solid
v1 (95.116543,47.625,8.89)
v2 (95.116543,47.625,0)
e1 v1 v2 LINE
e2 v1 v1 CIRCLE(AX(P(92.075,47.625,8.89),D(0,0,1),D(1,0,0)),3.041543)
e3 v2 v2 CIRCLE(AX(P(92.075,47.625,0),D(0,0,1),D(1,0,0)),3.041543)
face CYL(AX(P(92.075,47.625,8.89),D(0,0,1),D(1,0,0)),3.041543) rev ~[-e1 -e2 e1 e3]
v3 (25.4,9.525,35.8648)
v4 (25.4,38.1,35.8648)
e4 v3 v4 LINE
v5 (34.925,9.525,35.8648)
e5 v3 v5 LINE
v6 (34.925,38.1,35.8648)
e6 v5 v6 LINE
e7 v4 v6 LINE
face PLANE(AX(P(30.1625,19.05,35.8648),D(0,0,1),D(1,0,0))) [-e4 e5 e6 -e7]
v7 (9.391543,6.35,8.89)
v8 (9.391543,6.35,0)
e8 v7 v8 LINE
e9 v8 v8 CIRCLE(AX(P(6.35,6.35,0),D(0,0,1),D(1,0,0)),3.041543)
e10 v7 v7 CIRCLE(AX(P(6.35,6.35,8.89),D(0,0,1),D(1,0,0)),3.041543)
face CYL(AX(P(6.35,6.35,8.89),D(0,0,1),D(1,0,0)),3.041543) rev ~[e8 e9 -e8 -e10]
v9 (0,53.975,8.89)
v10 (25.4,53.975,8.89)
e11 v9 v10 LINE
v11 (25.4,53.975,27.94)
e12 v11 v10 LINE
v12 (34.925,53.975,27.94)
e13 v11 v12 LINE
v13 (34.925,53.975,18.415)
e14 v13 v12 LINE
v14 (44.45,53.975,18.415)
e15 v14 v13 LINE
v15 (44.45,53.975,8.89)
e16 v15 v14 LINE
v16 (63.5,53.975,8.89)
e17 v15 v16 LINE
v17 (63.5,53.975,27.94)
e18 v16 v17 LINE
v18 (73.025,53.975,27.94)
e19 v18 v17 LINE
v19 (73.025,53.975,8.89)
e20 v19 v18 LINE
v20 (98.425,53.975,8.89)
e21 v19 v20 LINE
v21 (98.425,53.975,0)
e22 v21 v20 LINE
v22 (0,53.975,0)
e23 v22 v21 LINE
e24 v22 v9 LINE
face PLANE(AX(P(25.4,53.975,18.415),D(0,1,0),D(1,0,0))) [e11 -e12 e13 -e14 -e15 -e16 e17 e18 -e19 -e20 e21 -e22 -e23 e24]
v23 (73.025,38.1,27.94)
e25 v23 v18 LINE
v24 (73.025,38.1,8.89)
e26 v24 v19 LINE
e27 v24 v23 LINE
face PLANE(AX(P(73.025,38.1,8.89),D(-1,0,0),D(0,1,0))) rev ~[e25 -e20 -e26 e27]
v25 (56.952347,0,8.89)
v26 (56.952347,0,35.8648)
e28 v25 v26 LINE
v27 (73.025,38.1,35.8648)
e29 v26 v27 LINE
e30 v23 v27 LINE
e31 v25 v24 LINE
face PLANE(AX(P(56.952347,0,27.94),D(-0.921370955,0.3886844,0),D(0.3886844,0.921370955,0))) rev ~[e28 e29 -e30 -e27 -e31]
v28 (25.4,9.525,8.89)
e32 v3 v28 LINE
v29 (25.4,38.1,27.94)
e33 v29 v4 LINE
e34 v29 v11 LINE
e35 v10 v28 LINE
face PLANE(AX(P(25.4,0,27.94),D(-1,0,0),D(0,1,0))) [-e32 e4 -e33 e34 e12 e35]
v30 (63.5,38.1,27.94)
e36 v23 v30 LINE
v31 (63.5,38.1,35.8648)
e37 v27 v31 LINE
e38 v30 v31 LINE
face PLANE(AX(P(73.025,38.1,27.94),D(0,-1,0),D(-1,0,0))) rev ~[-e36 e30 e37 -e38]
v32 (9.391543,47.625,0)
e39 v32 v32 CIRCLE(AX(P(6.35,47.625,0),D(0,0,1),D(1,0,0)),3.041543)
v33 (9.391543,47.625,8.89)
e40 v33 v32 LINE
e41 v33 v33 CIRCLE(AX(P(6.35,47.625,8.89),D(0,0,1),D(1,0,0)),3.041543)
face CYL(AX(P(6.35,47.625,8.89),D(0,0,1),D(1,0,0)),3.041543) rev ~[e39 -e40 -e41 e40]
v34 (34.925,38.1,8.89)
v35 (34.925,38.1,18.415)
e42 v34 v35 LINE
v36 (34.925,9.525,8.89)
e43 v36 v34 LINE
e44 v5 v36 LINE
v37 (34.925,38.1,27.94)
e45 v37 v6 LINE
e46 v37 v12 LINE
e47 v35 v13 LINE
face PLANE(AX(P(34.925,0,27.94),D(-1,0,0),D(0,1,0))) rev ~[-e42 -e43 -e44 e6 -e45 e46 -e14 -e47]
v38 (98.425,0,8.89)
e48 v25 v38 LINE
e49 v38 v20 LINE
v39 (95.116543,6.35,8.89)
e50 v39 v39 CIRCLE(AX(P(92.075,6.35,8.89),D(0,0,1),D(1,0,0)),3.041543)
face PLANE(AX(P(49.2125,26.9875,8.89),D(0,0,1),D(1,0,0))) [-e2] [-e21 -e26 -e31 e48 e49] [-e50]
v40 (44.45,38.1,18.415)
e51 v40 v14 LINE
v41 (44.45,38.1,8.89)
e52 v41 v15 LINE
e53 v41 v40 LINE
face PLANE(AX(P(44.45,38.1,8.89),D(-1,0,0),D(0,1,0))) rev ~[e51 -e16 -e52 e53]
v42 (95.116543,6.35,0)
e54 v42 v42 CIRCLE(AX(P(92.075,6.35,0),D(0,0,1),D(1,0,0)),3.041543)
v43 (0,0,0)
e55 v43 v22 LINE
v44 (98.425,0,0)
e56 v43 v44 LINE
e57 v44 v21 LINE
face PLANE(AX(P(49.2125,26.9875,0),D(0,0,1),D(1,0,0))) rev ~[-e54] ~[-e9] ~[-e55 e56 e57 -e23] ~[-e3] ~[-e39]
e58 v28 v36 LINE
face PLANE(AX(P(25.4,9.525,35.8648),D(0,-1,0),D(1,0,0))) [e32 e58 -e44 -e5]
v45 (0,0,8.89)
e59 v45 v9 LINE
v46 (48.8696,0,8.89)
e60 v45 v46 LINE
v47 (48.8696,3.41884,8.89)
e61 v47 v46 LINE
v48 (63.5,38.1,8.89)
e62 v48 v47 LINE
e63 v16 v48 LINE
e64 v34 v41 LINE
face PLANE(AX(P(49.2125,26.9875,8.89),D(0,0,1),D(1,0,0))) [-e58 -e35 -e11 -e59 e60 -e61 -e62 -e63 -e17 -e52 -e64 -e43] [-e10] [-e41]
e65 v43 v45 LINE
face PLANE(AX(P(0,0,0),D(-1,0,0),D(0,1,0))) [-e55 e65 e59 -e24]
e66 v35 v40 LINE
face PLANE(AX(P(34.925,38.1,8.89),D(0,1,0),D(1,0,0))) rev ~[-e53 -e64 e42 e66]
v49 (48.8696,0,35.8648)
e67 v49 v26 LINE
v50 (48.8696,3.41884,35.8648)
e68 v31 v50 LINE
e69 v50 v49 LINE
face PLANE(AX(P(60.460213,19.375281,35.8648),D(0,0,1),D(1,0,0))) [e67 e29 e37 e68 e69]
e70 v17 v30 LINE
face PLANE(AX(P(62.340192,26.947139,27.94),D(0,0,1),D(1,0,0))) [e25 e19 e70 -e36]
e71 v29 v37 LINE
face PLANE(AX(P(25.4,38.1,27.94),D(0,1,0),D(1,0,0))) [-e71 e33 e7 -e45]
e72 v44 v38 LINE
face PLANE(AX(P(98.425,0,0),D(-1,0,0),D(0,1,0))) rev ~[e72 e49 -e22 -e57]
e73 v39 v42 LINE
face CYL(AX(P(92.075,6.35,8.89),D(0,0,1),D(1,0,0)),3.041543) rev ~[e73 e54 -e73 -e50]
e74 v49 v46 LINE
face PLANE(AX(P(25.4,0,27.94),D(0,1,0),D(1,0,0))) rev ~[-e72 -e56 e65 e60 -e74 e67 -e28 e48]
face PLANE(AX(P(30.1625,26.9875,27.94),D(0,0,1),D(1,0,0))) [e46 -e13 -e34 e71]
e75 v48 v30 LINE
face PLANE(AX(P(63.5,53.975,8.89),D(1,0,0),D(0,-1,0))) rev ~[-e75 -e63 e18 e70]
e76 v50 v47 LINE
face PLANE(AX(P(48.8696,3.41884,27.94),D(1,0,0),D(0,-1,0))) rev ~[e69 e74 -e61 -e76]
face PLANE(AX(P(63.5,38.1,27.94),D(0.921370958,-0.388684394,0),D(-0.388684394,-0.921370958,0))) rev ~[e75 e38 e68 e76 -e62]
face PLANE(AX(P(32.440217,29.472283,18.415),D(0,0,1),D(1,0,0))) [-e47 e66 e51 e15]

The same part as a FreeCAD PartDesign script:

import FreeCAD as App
import Part
import Sketcher

V = App.Vector
Q = App.Units.Quantity

doc = App.newDocument("Part")
body = doc.addObject("PartDesign::Body", "Body")

sketch1 = body.newObject("Sketcher::SketchObject", "Sketch")
sketch1.AttachmentSupport = (doc.getObject("XY_Plane"), [""])
sketch1.MapMode = "FlatFace"
sketch1.addGeometry(Part.LineSegment(V(0, 54, 0), V(0, 0, 0)), False)
sketch1.addGeometry(Part.LineSegment(V(0, 0, 0), V(98, 0, 0)), False)
sketch1.addGeometry(Part.LineSegment(V(98, 0, 0), V(98, 54, 0)), False)
sketch1.addGeometry(Part.LineSegment(V(98, 54, 0), V(0, 54, 0)), False)
sketch1.addConstraint(Sketcher.Constraint("Coincident", 0, 2, 1, 1))
sketch1.addConstraint(Sketcher.Constraint("Coincident", 1, 2, 2, 1))
sketch1.addConstraint(Sketcher.Constraint("Coincident", 2, 2, 3, 1))
sketch1.addConstraint(Sketcher.Constraint("Coincident", 3, 2, 0, 1))
sketch1.addConstraint(Sketcher.Constraint("Vertical", 0))
sketch1.addConstraint(Sketcher.Constraint("Horizontal", 1))
sketch1.addConstraint(Sketcher.Constraint("Vertical", 2))
sketch1.addConstraint(Sketcher.Constraint("Horizontal", 3))
sketch1.addConstraint(Sketcher.Constraint("Coincident", 0, 2, -1, 1))
sketch1.addConstraint(Sketcher.Constraint("DistanceX", 1, 1, 1, 2, Q("3.875 in")))
sketch1.addConstraint(Sketcher.Constraint("DistanceY", 0, 2, 0, 1, Q("2.125 in")))
pad1 = body.newObject("PartDesign::Pad", "Pad")
pad1.Profile = sketch1
pad1.Length = Q("0.35 in")

sketch2 = body.newObject("Sketcher::SketchObject", "Sketch001")
sketch2.AttachmentSupport = (doc.getObject("XY_Plane"), [""])
sketch2.MapMode = "FlatFace"
sketch2.AttachmentOffset = App.Placement(V(0, 0, 0.35 * 25.4), App.Rotation())
sketch2.addGeometry(Part.LineSegment(V(25, 0, 0), V(35, 0, 0)), False)
sketch2.addGeometry(Part.LineSegment(V(35, 0, 0), V(35, 38, 0)), False)
sketch2.addGeometry(Part.LineSegment(V(35, 38, 0), V(44, 38, 0)), False)
sketch2.addGeometry(Part.LineSegment(V(44, 38, 0), V(44, 54, 0)), False)
sketch2.addGeometry(Part.LineSegment(V(44, 54, 0), V(25, 54, 0)), False)
sketch2.addGeometry(Part.LineSegment(V(25, 54, 0), V(25, 0, 0)), False)
sketch2.addConstraint(Sketcher.Constraint("Coincident", 0, 2, 1, 1))
sketch2.addConstraint(Sketcher.Constraint("Coincident", 1, 2, 2, 1))
sketch2.addConstraint(Sketcher.Constraint("Coincident", 2, 2, 3, 1))
sketch2.addConstraint(Sketcher.Constraint("Coincident", 3, 2, 4, 1))
sketch2.addConstraint(Sketcher.Constraint("Coincident", 4, 2, 5, 1))
sketch2.addConstraint(Sketcher.Constraint("Coincident", 5, 2, 0, 1))
sketch2.addConstraint(Sketcher.Constraint("Horizontal", 0))
sketch2.addConstraint(Sketcher.Constraint("Vertical", 1))
sketch2.addConstraint(Sketcher.Constraint("Horizontal", 2))
sketch2.addConstraint(Sketcher.Constraint("Vertical", 3))
sketch2.addConstraint(Sketcher.Constraint("Horizontal", 4))
sketch2.addConstraint(Sketcher.Constraint("Vertical", 5))
sketch2.addConstraint(Sketcher.Constraint("PointOnObject", 0, 2, -1))
sketch2.addConstraint(Sketcher.Constraint("Equal", 0, 2))
sketch2.addConstraint(Sketcher.Constraint("DistanceY", 1, 1, 1, 2, Q("1.5 in")))
sketch2.addConstraint(Sketcher.Constraint("DistanceX", -1, 1, 4, 2, Q("1 in")))
sketch2.addConstraint(Sketcher.Constraint("DistanceX", 4, 2, 4, 1, Q("0.75 in")))
sketch2.addConstraint(Sketcher.Constraint("DistanceY", 3, 1, 3, 2, Q("0.625 in")))
pad2 = body.newObject("PartDesign::Pad", "Pad001")
pad2.Profile = sketch2
pad2.Length = Q("0.375 in")

sketch3 = body.newObject("Sketcher::SketchObject", "Sketch002")
sketch3.AttachmentSupport = (doc.getObject("XY_Plane"), [""])
sketch3.MapMode = "FlatFace"
sketch3.AttachmentOffset = App.Placement(V(0, 0, 0.35 * 25.4), App.Rotation())
sketch3.addGeometry(Part.LineSegment(V(73, 54, 0), V(63.5, 54, 0)), False)
sketch3.addGeometry(Part.LineSegment(V(63.5, 54, 0), V(63.5, 38.1, 0)), False)
sketch3.addGeometry(Part.LineSegment(V(63.5, 38.1, 0), V(48.9, 3.4, 0)), False)
sketch3.addGeometry(Part.LineSegment(V(48.9, 3.4, 0), V(48.9, 0, 0)), False)
sketch3.addGeometry(Part.LineSegment(V(48.9, 0, 0), V(57, 0, 0)), False)
sketch3.addGeometry(Part.LineSegment(V(57, 0, 0), V(73, 38.1, 0)), False)
sketch3.addGeometry(Part.LineSegment(V(73, 38.1, 0), V(73, 54, 0)), False)
sketch3.addConstraint(Sketcher.Constraint("Coincident", 0, 2, 1, 1))
sketch3.addConstraint(Sketcher.Constraint("Coincident", 1, 2, 2, 1))
sketch3.addConstraint(Sketcher.Constraint("Coincident", 2, 2, 3, 1))
sketch3.addConstraint(Sketcher.Constraint("Coincident", 3, 2, 4, 1))
sketch3.addConstraint(Sketcher.Constraint("Coincident", 4, 2, 5, 1))
sketch3.addConstraint(Sketcher.Constraint("Coincident", 5, 2, 6, 1))
sketch3.addConstraint(Sketcher.Constraint("Coincident", 6, 2, 0, 1))
sketch3.addConstraint(Sketcher.Constraint("Horizontal", 0))
sketch3.addConstraint(Sketcher.Constraint("Vertical", 1))
sketch3.addConstraint(Sketcher.Constraint("Vertical", 3))
sketch3.addConstraint(Sketcher.Constraint("Horizontal", 4))
sketch3.addConstraint(Sketcher.Constraint("Vertical", 6))
sketch3.addConstraint(Sketcher.Constraint("PointOnObject", 3, 2, -1))
sketch3.addConstraint(Sketcher.Constraint("Parallel", 2, 5))
sketch3.addConstraint(Sketcher.Constraint("Horizontal", 1, 2, 5, 2))
sketch3.addConstraint(Sketcher.Constraint("DistanceX", -1, 1, 0, 2, Q("2.5 in")))
sketch3.addConstraint(Sketcher.Constraint("DistanceY", -1, 1, 1, 2, Q("1.5 in")))
sketch3.addConstraint(Sketcher.Constraint("DistanceX", 0, 2, 0, 1, Q("0.375 in")))
sketch3.addConstraint(Sketcher.Constraint("DistanceY", 1, 2, 1, 1, Q("0.625 in")))
sketch3.addConstraint(Sketcher.Constraint("DistanceY", 3, 2, 3, 1, Q("0.1346 in")))
sketch3.addConstraint(Sketcher.Constraint("DistanceX", -1, 1, 2, 2, Q("1.924 in")))
pad3 = body.newObject("PartDesign::Pad", "Pad002")
pad3.Profile = sketch3
pad3.Length = Q("0.75 in")

sketch4 = body.newObject("Sketcher::SketchObject", "Sketch003")
sketch4.AttachmentSupport = (doc.getObject("XY_Plane"), [""])
sketch4.MapMode = "FlatFace"
sketch4.AttachmentOffset = App.Placement(V(0, 0, 1.1 * 25.4), App.Rotation())
sketch4.addGeometry(Part.LineSegment(V(48.9, 0, 0), V(57, 0, 0)), False)
sketch4.addGeometry(Part.LineSegment(V(57, 0, 0), V(73, 38.1, 0)), False)
sketch4.addGeometry(Part.LineSegment(V(73, 38.1, 0), V(63.5, 38.1, 0)), False)
sketch4.addGeometry(Part.LineSegment(V(63.5, 38.1, 0), V(48.9, 3.4, 0)), False)
sketch4.addGeometry(Part.LineSegment(V(48.9, 3.4, 0), V(48.9, 0, 0)), False)
sketch4.addConstraint(Sketcher.Constraint("Coincident", 0, 2, 1, 1))
sketch4.addConstraint(Sketcher.Constraint("Coincident", 1, 2, 2, 1))
sketch4.addConstraint(Sketcher.Constraint("Coincident", 2, 2, 3, 1))
sketch4.addConstraint(Sketcher.Constraint("Coincident", 3, 2, 4, 1))
sketch4.addConstraint(Sketcher.Constraint("Coincident", 4, 2, 0, 1))
sketch4.addConstraint(Sketcher.Constraint("Horizontal", 0))
sketch4.addConstraint(Sketcher.Constraint("Horizontal", 2))
sketch4.addConstraint(Sketcher.Constraint("Vertical", 4))
sketch4.addConstraint(Sketcher.Constraint("PointOnObject", 0, 2, -1))
sketch4.addConstraint(Sketcher.Constraint("Parallel", 1, 3))
sketch4.addConstraint(Sketcher.Constraint("DistanceY", -1, 1, 1, 2, Q("1.5 in")))
sketch4.addConstraint(Sketcher.Constraint("DistanceX", -1, 1, 2, 2, Q("2.5 in")))
sketch4.addConstraint(Sketcher.Constraint("DistanceX", 2, 2, 2, 1, Q("0.375 in")))
sketch4.addConstraint(Sketcher.Constraint("DistanceY", 4, 2, 4, 1, Q("0.1346 in")))
sketch4.addConstraint(Sketcher.Constraint("DistanceX", -1, 1, 3, 2, Q("1.924 in")))
pad4 = body.newObject("PartDesign::Pad", "Pad003")
pad4.Profile = sketch4
pad4.Length = Q("0.312 in")

sketch5 = body.newObject("Sketcher::SketchObject", "Sketch004")
sketch5.AttachmentSupport = (doc.getObject("XY_Plane"), [""])
sketch5.MapMode = "FlatFace"
sketch5.AttachmentOffset = App.Placement(V(0, 0, 0.725 * 25.4), App.Rotation())
sketch5.addGeometry(Part.LineSegment(V(25, 54, 0), V(25, 0, 0)), False)
sketch5.addGeometry(Part.LineSegment(V(25, 0, 0), V(35, 0, 0)), False)
sketch5.addGeometry(Part.LineSegment(V(35, 0, 0), V(35, 54, 0)), False)
sketch5.addGeometry(Part.LineSegment(V(35, 54, 0), V(25, 54, 0)), False)
sketch5.addConstraint(Sketcher.Constraint("Coincident", 0, 2, 1, 1))
sketch5.addConstraint(Sketcher.Constraint("Coincident", 1, 2, 2, 1))
sketch5.addConstraint(Sketcher.Constraint("Coincident", 2, 2, 3, 1))
sketch5.addConstraint(Sketcher.Constraint("Coincident", 3, 2, 0, 1))
sketch5.addConstraint(Sketcher.Constraint("Vertical", 0))
sketch5.addConstraint(Sketcher.Constraint("Horizontal", 1))
sketch5.addConstraint(Sketcher.Constraint("Vertical", 2))
sketch5.addConstraint(Sketcher.Constraint("Horizontal", 3))
sketch5.addConstraint(Sketcher.Constraint("PointOnObject", 0, 2, -1))
sketch5.addConstraint(Sketcher.Constraint("DistanceX", -1, 1, 0, 2, Q("1 in")))
sketch5.addConstraint(Sketcher.Constraint("DistanceX", 1, 1, 1, 2, Q("0.375 in")))
sketch5.addConstraint(Sketcher.Constraint("DistanceY", 0, 2, 0, 1, Q("2.125 in")))
pad5 = body.newObject("PartDesign::Pad", "Pad004")
pad5.Profile = sketch5
pad5.Length = Q("0.375 in")

sketch6 = body.newObject("Sketcher::SketchObject", "Sketch005")
sketch6.AttachmentSupport = (doc.getObject("XY_Plane"), [""])
sketch6.MapMode = "FlatFace"
sketch6.AttachmentOffset = App.Placement(V(0, 0, 1.1 * 25.4), App.Rotation())
sketch6.addGeometry(Part.LineSegment(V(25, 38, 0), V(25, 0, 0)), False)
sketch6.addGeometry(Part.LineSegment(V(25, 0, 0), V(35, 0, 0)), False)
sketch6.addGeometry(Part.LineSegment(V(35, 0, 0), V(35, 38, 0)), False)
sketch6.addGeometry(Part.LineSegment(V(35, 38, 0), V(25, 38, 0)), False)
sketch6.addConstraint(Sketcher.Constraint("Coincident", 0, 2, 1, 1))
sketch6.addConstraint(Sketcher.Constraint("Coincident", 1, 2, 2, 1))
sketch6.addConstraint(Sketcher.Constraint("Coincident", 2, 2, 3, 1))
sketch6.addConstraint(Sketcher.Constraint("Coincident", 3, 2, 0, 1))
sketch6.addConstraint(Sketcher.Constraint("Vertical", 0))
sketch6.addConstraint(Sketcher.Constraint("Horizontal", 1))
sketch6.addConstraint(Sketcher.Constraint("Vertical", 2))
sketch6.addConstraint(Sketcher.Constraint("Horizontal", 3))
sketch6.addConstraint(Sketcher.Constraint("PointOnObject", 0, 2, -1))
sketch6.addConstraint(Sketcher.Constraint("DistanceY", 0, 2, 0, 1, Q("1.5 in")))
sketch6.addConstraint(Sketcher.Constraint("DistanceX", -1, 1, 0, 2, Q("1 in")))
sketch6.addConstraint(Sketcher.Constraint("DistanceX", 1, 1, 1, 2, Q("0.375 in")))
pad6 = body.newObject("PartDesign::Pad", "Pad005")
pad6.Profile = sketch6
pad6.Length = Q("0.312 in")

sketch7 = body.newObject("Sketcher::SketchObject", "Sketch006")
sketch7.AttachmentSupport = (doc.getObject("XY_Plane"), [""])
sketch7.MapMode = "FlatFace"
sketch7.AttachmentOffset = App.Placement(V(0, 0, 0.35 * 25.4), App.Rotation())
sketch7.addGeometry(Part.Circle(V(6.3, 47.6, 0), V(0, 0, 1), 3), False)
sketch7.addGeometry(Part.Circle(V(6.3, 6.3, 0), V(0, 0, 1), 3), False)
sketch7.addGeometry(Part.Circle(V(92.1, 6.3, 0), V(0, 0, 1), 3), False)
sketch7.addGeometry(Part.Circle(V(92.1, 47.6, 0), V(0, 0, 1), 3), False)
sketch7.addConstraint(Sketcher.Constraint("Equal", 0, 1))
sketch7.addConstraint(Sketcher.Constraint("Equal", 1, 2))
sketch7.addConstraint(Sketcher.Constraint("Equal", 2, 3))
sketch7.addConstraint(Sketcher.Constraint("Horizontal", 1, 3, 2, 3))
sketch7.addConstraint(Sketcher.Constraint("Horizontal", 0, 3, 3, 3))
sketch7.addConstraint(Sketcher.Constraint("Vertical", 0, 3, 1, 3))
sketch7.addConstraint(Sketcher.Constraint("Vertical", 2, 3, 3, 3))
sketch7.addConstraint(Sketcher.Constraint("DistanceX", -1, 1, 0, 3, Q("0.25 in")))
sketch7.addConstraint(Sketcher.Constraint("DistanceY", -1, 1, 1, 3, Q("0.25 in")))
sketch7.addConstraint(Sketcher.Constraint("DistanceY", -1, 1, 0, 3, Q("1.875 in")))
sketch7.addConstraint(Sketcher.Constraint("DistanceX", -1, 1, 2, 3, Q("3.625 in")))
sketch7.addConstraint(Sketcher.Constraint("Diameter", 0, Q("6.083086 mm")))
pocket1 = body.newObject("PartDesign::Pocket", "Pocket")
pocket1.Profile = sketch7
pocket1.Length = Q("1 in")

sketch8 = body.newObject("Sketcher::SketchObject", "Sketch007")
sketch8.AttachmentSupport = (doc.getObject("XY_Plane"), [""])
sketch8.MapMode = "FlatFace"
sketch8.AttachmentOffset = App.Placement(V(0, 0, 1.412 * 25.4), App.Rotation())
sketch8.addGeometry(Part.LineSegment(V(25, 10, 0), V(25, 0, 0)), False)
sketch8.addGeometry(Part.LineSegment(V(25, 0, 0), V(35, 0, 0)), False)
sketch8.addGeometry(Part.LineSegment(V(35, 0, 0), V(35, 10, 0)), False)
sketch8.addGeometry(Part.LineSegment(V(35, 10, 0), V(25, 10, 0)), False)
sketch8.addConstraint(Sketcher.Constraint("Coincident", 0, 2, 1, 1))
sketch8.addConstraint(Sketcher.Constraint("Coincident", 1, 2, 2, 1))
sketch8.addConstraint(Sketcher.Constraint("Coincident", 2, 2, 3, 1))
sketch8.addConstraint(Sketcher.Constraint("Coincident", 3, 2, 0, 1))
sketch8.addConstraint(Sketcher.Constraint("Vertical", 0))
sketch8.addConstraint(Sketcher.Constraint("Horizontal", 1))
sketch8.addConstraint(Sketcher.Constraint("Vertical", 2))
sketch8.addConstraint(Sketcher.Constraint("Horizontal", 3))
sketch8.addConstraint(Sketcher.Constraint("PointOnObject", 0, 2, -1))
sketch8.addConstraint(Sketcher.Constraint("Equal", 3, 0))
sketch8.addConstraint(Sketcher.Constraint("DistanceX", -1, 1, 0, 2, Q("1 in")))
sketch8.addConstraint(Sketcher.Constraint("DistanceX", 1, 1, 1, 2, Q("0.375 in")))
pocket2 = body.newObject("PartDesign::Pocket", "Pocket001")
pocket2.Profile = sketch8
pocket2.Length = Q("1.062 in")

doc.recompute()
